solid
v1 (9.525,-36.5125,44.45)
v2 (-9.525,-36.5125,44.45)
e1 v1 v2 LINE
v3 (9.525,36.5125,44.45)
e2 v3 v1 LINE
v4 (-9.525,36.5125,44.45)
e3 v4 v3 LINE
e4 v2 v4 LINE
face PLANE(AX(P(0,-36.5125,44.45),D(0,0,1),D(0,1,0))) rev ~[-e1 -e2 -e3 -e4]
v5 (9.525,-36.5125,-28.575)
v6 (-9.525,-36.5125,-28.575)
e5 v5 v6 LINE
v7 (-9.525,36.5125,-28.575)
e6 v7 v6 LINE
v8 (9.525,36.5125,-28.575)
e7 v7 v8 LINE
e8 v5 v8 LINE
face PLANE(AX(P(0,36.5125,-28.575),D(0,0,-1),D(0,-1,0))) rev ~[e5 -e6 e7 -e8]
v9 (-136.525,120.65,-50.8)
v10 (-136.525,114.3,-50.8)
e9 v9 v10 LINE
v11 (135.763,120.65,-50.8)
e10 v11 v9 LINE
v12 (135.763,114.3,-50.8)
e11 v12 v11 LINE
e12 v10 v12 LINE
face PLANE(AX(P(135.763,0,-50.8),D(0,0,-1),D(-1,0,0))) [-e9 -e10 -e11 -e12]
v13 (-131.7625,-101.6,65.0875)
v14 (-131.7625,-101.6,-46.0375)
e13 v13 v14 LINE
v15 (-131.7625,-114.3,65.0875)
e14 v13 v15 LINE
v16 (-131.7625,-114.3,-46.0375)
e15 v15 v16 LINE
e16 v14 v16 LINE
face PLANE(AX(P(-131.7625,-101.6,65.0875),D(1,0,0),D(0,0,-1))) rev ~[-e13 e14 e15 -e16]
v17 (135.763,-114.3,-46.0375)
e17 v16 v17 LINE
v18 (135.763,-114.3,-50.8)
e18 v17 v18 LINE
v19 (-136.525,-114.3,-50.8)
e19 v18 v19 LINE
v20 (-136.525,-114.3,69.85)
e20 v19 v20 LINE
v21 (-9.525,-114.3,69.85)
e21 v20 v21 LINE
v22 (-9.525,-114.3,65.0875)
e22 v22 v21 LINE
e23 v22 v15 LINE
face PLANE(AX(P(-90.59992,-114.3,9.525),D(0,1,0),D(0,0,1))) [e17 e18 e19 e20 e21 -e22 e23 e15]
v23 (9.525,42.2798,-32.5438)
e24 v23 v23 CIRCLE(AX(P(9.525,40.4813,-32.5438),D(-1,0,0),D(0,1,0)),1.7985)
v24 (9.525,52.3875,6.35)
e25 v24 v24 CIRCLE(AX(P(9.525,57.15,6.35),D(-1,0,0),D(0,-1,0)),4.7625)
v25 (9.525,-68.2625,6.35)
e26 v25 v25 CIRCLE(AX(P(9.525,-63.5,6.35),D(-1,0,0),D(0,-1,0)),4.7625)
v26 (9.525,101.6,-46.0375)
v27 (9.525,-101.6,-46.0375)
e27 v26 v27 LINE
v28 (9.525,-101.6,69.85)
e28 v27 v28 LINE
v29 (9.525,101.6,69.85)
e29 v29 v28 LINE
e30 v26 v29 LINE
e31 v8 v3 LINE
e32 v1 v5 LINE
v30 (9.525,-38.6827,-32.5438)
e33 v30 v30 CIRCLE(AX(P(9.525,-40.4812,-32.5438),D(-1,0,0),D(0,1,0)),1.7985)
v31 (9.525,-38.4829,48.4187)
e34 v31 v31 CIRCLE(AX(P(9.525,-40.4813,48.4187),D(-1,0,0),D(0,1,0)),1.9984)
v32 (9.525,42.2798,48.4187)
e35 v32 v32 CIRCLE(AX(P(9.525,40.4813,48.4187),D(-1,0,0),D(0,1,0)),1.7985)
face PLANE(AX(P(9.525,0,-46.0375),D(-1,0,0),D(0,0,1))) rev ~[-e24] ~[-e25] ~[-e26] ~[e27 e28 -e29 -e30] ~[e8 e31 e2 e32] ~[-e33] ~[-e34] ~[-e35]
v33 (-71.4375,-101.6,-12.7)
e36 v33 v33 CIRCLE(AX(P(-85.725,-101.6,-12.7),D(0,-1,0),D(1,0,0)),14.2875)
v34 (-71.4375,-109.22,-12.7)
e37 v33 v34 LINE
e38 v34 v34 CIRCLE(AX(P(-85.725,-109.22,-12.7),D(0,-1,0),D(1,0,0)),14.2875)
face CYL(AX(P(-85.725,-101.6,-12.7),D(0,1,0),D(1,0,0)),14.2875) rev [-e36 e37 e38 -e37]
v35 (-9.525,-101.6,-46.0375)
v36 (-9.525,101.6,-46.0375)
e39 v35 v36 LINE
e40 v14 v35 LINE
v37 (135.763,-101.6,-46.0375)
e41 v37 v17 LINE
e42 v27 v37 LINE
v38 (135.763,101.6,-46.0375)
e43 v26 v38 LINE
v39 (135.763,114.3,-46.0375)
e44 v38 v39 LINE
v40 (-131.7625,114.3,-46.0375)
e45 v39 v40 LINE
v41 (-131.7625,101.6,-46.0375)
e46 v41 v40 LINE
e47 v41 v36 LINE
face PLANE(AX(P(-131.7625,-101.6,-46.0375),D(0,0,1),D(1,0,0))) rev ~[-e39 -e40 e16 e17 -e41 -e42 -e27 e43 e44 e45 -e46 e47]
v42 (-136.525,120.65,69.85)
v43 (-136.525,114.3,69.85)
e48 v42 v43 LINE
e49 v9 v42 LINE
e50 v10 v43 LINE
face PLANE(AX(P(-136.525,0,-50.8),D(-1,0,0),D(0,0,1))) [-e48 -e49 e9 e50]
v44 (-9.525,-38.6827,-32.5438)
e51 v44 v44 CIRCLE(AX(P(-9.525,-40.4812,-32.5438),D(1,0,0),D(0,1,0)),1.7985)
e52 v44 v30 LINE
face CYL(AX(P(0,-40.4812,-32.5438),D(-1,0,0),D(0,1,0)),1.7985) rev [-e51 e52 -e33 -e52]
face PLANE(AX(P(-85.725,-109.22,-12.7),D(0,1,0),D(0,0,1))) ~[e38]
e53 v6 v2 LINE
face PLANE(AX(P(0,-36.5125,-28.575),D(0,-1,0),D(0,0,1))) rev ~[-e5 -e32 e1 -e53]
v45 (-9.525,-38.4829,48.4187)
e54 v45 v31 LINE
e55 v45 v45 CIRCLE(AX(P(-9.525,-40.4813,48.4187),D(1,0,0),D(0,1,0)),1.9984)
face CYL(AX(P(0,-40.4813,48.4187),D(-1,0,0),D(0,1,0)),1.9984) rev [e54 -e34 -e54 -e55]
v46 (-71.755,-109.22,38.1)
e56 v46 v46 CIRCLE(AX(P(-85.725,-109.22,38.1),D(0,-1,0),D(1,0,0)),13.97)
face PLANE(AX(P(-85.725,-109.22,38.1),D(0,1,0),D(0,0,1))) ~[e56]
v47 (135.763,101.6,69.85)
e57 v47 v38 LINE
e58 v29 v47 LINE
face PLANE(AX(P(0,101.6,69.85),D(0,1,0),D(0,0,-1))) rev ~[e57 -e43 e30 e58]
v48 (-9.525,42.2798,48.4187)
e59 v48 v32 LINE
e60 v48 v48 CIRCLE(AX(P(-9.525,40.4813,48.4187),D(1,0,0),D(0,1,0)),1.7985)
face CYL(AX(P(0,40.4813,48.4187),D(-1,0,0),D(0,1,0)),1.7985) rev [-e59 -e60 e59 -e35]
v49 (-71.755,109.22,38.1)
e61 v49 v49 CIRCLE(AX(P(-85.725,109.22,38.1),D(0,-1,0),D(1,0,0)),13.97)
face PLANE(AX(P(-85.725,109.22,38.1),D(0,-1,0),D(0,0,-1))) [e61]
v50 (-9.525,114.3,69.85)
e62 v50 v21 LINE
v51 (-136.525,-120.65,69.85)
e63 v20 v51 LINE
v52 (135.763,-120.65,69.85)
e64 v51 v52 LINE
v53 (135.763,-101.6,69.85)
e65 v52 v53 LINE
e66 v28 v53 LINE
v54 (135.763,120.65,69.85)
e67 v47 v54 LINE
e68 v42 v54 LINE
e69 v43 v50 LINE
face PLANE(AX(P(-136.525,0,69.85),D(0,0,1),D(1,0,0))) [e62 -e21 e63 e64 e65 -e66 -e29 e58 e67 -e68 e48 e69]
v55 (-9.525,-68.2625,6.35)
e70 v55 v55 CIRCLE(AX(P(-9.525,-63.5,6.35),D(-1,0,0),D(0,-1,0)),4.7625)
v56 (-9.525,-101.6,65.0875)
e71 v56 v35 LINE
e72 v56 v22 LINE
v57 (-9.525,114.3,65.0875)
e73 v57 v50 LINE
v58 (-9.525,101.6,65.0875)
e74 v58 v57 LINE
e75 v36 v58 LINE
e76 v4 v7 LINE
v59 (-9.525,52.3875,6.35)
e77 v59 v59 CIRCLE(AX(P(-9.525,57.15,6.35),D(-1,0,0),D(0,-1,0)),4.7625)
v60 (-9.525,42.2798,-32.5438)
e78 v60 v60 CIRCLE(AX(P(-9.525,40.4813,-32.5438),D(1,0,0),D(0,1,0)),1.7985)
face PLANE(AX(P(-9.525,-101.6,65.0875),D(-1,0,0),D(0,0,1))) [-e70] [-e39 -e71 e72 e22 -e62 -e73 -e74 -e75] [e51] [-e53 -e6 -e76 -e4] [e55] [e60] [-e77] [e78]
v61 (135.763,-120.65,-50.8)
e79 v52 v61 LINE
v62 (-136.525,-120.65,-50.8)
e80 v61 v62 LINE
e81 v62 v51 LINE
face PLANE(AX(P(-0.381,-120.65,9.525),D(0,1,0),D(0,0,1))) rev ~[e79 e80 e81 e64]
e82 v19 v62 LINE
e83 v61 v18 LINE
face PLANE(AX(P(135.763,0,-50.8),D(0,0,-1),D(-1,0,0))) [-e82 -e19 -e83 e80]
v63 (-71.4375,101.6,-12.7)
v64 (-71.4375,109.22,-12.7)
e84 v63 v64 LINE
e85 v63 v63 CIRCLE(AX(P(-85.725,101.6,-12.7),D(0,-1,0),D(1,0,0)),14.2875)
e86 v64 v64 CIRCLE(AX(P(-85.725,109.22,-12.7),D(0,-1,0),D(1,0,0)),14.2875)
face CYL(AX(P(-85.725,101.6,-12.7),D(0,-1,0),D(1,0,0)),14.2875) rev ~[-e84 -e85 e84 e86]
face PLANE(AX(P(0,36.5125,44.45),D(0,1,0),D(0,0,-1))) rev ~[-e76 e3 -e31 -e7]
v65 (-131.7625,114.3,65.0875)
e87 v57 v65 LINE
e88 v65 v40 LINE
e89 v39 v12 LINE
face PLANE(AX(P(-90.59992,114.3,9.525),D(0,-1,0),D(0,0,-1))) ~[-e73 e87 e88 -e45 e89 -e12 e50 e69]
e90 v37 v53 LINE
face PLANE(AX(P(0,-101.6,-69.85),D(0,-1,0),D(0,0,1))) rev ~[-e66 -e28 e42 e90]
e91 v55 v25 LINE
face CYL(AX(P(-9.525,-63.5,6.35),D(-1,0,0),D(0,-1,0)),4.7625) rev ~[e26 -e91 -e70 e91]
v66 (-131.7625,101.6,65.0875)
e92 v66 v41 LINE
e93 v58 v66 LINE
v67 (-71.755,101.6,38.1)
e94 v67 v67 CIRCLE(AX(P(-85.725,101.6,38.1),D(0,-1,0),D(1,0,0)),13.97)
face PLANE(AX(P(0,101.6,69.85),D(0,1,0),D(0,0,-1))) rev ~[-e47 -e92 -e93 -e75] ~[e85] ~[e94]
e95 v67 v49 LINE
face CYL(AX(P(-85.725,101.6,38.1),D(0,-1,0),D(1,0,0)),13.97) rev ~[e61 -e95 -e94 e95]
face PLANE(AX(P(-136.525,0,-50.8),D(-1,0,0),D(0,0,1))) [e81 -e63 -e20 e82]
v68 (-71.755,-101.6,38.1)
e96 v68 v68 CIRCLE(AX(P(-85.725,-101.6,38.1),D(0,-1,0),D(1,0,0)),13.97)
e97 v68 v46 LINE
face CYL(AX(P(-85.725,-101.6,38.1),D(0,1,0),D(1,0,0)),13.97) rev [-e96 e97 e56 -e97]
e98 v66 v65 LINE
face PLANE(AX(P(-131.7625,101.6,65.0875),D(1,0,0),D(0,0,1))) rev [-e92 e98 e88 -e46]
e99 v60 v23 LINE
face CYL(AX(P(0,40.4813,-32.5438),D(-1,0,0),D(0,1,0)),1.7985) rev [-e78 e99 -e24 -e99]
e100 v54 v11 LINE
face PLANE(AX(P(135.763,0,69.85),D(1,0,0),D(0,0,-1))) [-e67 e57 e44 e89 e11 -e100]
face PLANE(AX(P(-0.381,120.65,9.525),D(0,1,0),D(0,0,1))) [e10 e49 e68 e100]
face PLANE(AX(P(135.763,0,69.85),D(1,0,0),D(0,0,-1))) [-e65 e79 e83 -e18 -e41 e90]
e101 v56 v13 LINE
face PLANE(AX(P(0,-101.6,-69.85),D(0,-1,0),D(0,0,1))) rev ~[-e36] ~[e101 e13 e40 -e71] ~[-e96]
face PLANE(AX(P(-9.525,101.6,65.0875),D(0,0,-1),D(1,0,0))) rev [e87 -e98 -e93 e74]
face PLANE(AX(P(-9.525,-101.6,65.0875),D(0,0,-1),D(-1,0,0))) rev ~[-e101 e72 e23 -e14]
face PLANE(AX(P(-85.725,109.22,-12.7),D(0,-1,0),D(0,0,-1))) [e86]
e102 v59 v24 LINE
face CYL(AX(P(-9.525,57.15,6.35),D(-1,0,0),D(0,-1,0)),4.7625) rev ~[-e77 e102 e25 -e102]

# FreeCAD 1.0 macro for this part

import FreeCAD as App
import Part
import Sketcher

V = App.Vector
Q = App.Units.Quantity

doc = App.newDocument("Part")
body = doc.addObject("PartDesign::Body", "Body")
body.AllowCompound = True

# Sketch on XZ plane
sketch1 = body.newObject("Sketcher::SketchObject", "Sketch")
sketch1.AttachmentSupport = (doc.getObject("XZ_Plane"), [""])
sketch1.MapMode = "FlatFace"
sketch1.addGeometry([
    Part.LineSegment(V(136, 70, 0), V(-137, 70, 0)),
    Part.LineSegment(V(-137, 70, 0), V(-137, -51, 0)),
    Part.LineSegment(V(-137, -51, 0), V(136, -51, 0)),
    Part.LineSegment(V(136, -51, 0), V(136, 70, 0)),
], False)
sketch1.addConstraint([
    Sketcher.Constraint("Coincident", 0, 2, 1, 1),
    Sketcher.Constraint("Coincident", 1, 2, 2, 1),
    Sketcher.Constraint("Coincident", 2, 2, 3, 1),
    Sketcher.Constraint("Coincident", 3, 2, 0, 1),
    Sketcher.Constraint("Horizontal", 0),
    Sketcher.Constraint("Vertical", 1),
    Sketcher.Constraint("Horizontal", 2),
    Sketcher.Constraint("Vertical", 3),
    Sketcher.Constraint("DistanceX", 0, 2, -1, 1, Q("5.375 in")),
    Sketcher.Constraint("DistanceY", 1, 2, -1, 1, Q("2 in")),
    Sketcher.Constraint("DistanceX", 0, 2, 0, 1, Q("10.72 in")),
    Sketcher.Constraint("DistanceY", 1, 2, 1, 1, Q("4.75 in")),
])
pad1 = body.newObject("PartDesign::Pad", "Pad")
pad1.Profile = sketch1
pad1.Length = Q("9.5 in")
pad1.Midplane = True

# Sketch on YZ plane
sketch2 = body.newObject("Sketcher::SketchObject", "Sketch001")
sketch2.AttachmentSupport = (doc.getObject("YZ_Plane"), [""])
sketch2.MapMode = "FlatFace"
sketch2.addGeometry([
    Part.LineSegment(V(-102, -70, 0), V(102, -70, 0)),
    Part.LineSegment(V(102, -70, 0), V(102, 70, 0)),
    Part.LineSegment(V(102, 70, 0), V(-102, 70, 0)),
    Part.LineSegment(V(-102, 70, 0), V(-102, -70, 0)),
], False)
sketch2.addConstraint([
    Sketcher.Constraint("Coincident", 0, 2, 1, 1),
    Sketcher.Constraint("Coincident", 1, 2, 2, 1),
    Sketcher.Constraint("Coincident", 2, 2, 3, 1),
    Sketcher.Constraint("Coincident", 3, 2, 0, 1),
    Sketcher.Constraint("Horizontal", 0),
    Sketcher.Constraint("Vertical", 1),
    Sketcher.Constraint("Horizontal", 2),
    Sketcher.Constraint("Vertical", 3),
    Sketcher.Constraint("Symmetric", 0, 2, 2, 2, -1, 1),
    Sketcher.Constraint("DistanceX", 0, 1, 0, 2, Q("8 in")),
    Sketcher.Constraint("DistanceY", 1, 1, 1, 2, Q("5.5 in")),
])
pocket1 = body.newObject("PartDesign::Pocket", "Pocket")
pocket1.Profile = sketch2
pocket1.Type = "ThroughAll"
pocket1.Midplane = True

# Sketch on XZ plane
sketch3 = body.newObject("Sketcher::SketchObject", "Sketch002")
sketch3.AttachmentSupport = (doc.getObject("XZ_Plane"), [""])
sketch3.MapMode = "FlatFace"
sketch3.AttachmentOffset = App.Placement(V(0, 0, 4 * 25.4), App.Rotation())
sketch3.addGeometry([
    Part.LineSegment(V(-131.8, 65.1, 0), V(-131.8, -46, 0)),  # 0
    Part.LineSegment(V(-131.8, -46, 0), V(-9.5, -46, 0)),  # 1
    Part.LineSegment(V(-9.5, -46, 0), V(-9.5, -50.8, 0)),  # 2
    Part.LineSegment(V(-9.5, -50.8, 0), V(-136.5, -50.8, 0)),  # 3
    Part.LineSegment(V(-136.5, -50.8, 0), V(-136.5, 69.8, 0)),  # 4
    Part.LineSegment(V(-136.5, 69.8, 0), V(-9.5, 69.8, 0)),  # 5
    Part.LineSegment(V(-9.5, 69.8, 0), V(-9.5, 65.1, 0)),  # 6
    Part.LineSegment(V(-9.5, 65.1, 0), V(-131.8, 65.1, 0)),  # 7
], False)
sketch3.addConstraint([
    Sketcher.Constraint("Coincident", 0, 2, 1, 1),
    Sketcher.Constraint("Coincident", 1, 2, 2, 1),
    Sketcher.Constraint("Coincident", 2, 2, 3, 1),
    Sketcher.Constraint("Coincident", 3, 2, 4, 1),
    Sketcher.Constraint("Coincident", 4, 2, 5, 1),
    Sketcher.Constraint("Coincident", 5, 2, 6, 1),
    Sketcher.Constraint("Coincident", 6, 2, 7, 1),
    Sketcher.Constraint("Coincident", 7, 2, 0, 1),
    Sketcher.Constraint("Vertical", 0),
    Sketcher.Constraint("Horizontal", 1),
    Sketcher.Constraint("Vertical", 2),
    Sketcher.Constraint("Horizontal", 3),
    Sketcher.Constraint("Vertical", 4),
    Sketcher.Constraint("Horizontal", 5),
    Sketcher.Constraint("Vertical", 6),
    Sketcher.Constraint("Horizontal", 7),
    Sketcher.Constraint("Vertical", 2, 2, 5, 2),
    Sketcher.Constraint("Equal", 2, 6),
    Sketcher.Constraint("DistanceX", 3, 2, 3, 1, Q("5 in")),
    Sketcher.Constraint("DistanceY", 2, 2, -1, 1, Q("2 in")),
    Sketcher.Constraint("DistanceY", 4, 1, 4, 2, Q("4.75 in")),
    Sketcher.Constraint("DistanceX", 1, 1, 1, 2, Q("4.8125 in")),
    Sketcher.Constraint("DistanceY", 0, 2, 0, 1, Q("4.375 in")),
    Sketcher.Constraint("DistanceX", 0, 2, -1, 1, Q("5.1875 in")),
])
pocket2 = body.newObject("PartDesign::Pocket", "Pocket001")
pocket2.Profile = sketch3
pocket2.Length = Q("0.5 in")
pocket2.Reversed = True
doc.recompute()

mirrored = body.newObject("PartDesign::Mirrored", "Mirrored")
mirrored.Originals = [pocket2]
mirrored.MirrorPlane = (doc.getObject("XZ_Plane"), [""])
body.Tip = mirrored

# Sketch on XZ plane
sketch4 = body.newObject("Sketcher::SketchObject", "Sketch003")
sketch4.AttachmentSupport = (doc.getObject("XZ_Plane"), [""])
sketch4.MapMode = "FlatFace"
sketch4.AttachmentOffset = App.Placement(V(0, 0, -4 * 25.4), App.Rotation())
sketch4.addGeometry([
    Part.Circle(V(-86, -13, 0), V(0, 0, 1), 14),
    Part.Circle(V(-86, 38, 0), V(0, 0, 1), 14),
], False)
sketch4.addConstraint([
    Sketcher.Constraint("Vertical", 0, 3, 1, 3),
    Sketcher.Constraint("Diameter", 1, Q("1.1 in")),
    Sketcher.Constraint("Diameter", 0, Q("1.125 in")),
    Sketcher.Constraint("DistanceY", 0, 3, 1, 3, Q("2 in")),
    Sketcher.Constraint("DistanceY", 0, 3, -1, 1, Q("0.5 in")),
    Sketcher.Constraint("DistanceX", 0, 3, -1, 1, Q("3.375 in")),
])
pocket3 = body.newObject("PartDesign::Pocket", "Pocket002")
pocket3.Profile = sketch4
pocket3.Length = Q("0.3 in")
doc.recompute()

mirrored2 = body.newObject("PartDesign::Mirrored", "Mirrored001")
mirrored2.Originals = [pocket3]
mirrored2.MirrorPlane = (doc.getObject("XZ_Plane"), [""])
body.Tip = mirrored2

# Sketch on XZ plane
sketch5 = body.newObject("Sketcher::SketchObject", "Sketch004")
sketch5.AttachmentSupport = (doc.getObject("XZ_Plane"), [""])
sketch5.MapMode = "FlatFace"
sketch5.addGeometry([
    Part.LineSegment(V(-10, 70, 0), V(-10, -46, 0)),
    Part.LineSegment(V(-10, -46, 0), V(10, -46, 0)),
    Part.LineSegment(V(10, -46, 0), V(10, 70, 0)),
    Part.LineSegment(V(10, 70, 0), V(-10, 70, 0)),
], False)
sketch5.addConstraint([
    Sketcher.Constraint("Coincident", 0, 2, 1, 1),
    Sketcher.Constraint("Coincident", 1, 2, 2, 1),
    Sketcher.Constraint("Coincident", 2, 2, 3, 1),
    Sketcher.Constraint("Coincident", 3, 2, 0, 1),
    Sketcher.Constraint("Vertical", 0),
    Sketcher.Constraint("Horizontal", 1),
    Sketcher.Constraint("Vertical", 2),
    Sketcher.Constraint("Horizontal", 3),
    Sketcher.Constraint("DistanceX", 1, 1, 1, 2, Q("0.75 in")),
    Sketcher.Constraint("DistanceY", 0, 2, 0, 1, Q("4.5625 in")),
    Sketcher.Constraint("DistanceY", -1, 1, 2, 2, Q("2.75 in")),
    Sketcher.Constraint("DistanceX", 0, 2, -1, 1, Q("0.375 in")),
])
pad2 = body.newObject("PartDesign::Pad", "Pad001")
pad2.Profile = sketch5
pad2.Type = "TwoLengths"
pad2.Length = Q("4 in")
pad2.Length2 = Q("4 in")

# Sketch on YZ plane
sketch6 = body.newObject("Sketcher::SketchObject", "Sketch005")
sketch6.AttachmentSupport = (doc.getObject("YZ_Plane"), [""])
sketch6.MapMode = "FlatFace"
sketch6.addGeometry([
    Part.LineSegment(V(-36.5, -28.6, 0), V(36.5, -28.6, 0)),  # 0
    Part.LineSegment(V(36.5, -28.6, 0), V(36.5, 44.5, 0)),  # 1
    Part.LineSegment(V(36.5, 44.5, 0), V(-36.5, 44.5, 0)),  # 2
    Part.LineSegment(V(-36.5, 44.5, 0), V(-36.5, -28.6, 0)),  # 3
    Part.Circle(V(-40.5, 48.4, 0), V(0, 0, 1), 2),  # 4
    Part.Circle(V(-40.5, -32.5, 0), V(0, 0, 1), 1.8),  # 5
    Part.Circle(V(40.5, 48.4, 0), V(0, 0, 1), 1.8),  # 6
    Part.Circle(V(40.5, -32.5, 0), V(0, 0, 1), 1.8),  # 7
], False)
sketch6.addConstraint([
    Sketcher.Constraint("Coincident", 0, 2, 1, 1),
    Sketcher.Constraint("Coincident", 1, 2, 2, 1),
    Sketcher.Constraint("Coincident", 2, 2, 3, 1),
    Sketcher.Constraint("Coincident", 3, 2, 0, 1),
    Sketcher.Constraint("Horizontal", 0),
    Sketcher.Constraint("Vertical", 1),
    Sketcher.Constraint("Horizontal", 2),
    Sketcher.Constraint("Vertical", 3),
    Sketcher.Constraint("Equal", 5, 6),
    Sketcher.Constraint("Equal", 6, 7),
    Sketcher.Constraint("Symmetric", 4, 3, 6, 3, -2),
    Sketcher.Constraint("Symmetric", 5, 3, 7, 3, -2),
    Sketcher.Constraint("Vertical", 4, 3, 5, 3),
    Sketcher.Constraint("Equal", 2, 1),
    Sketcher.Constraint("DistanceX", -1, 1, 0, 2, Q("1.4375 in")),
    Sketcher.Constraint("DistanceX", 2, 2, -1, 1, Q("1.4375 in")),
    Sketcher.Constraint("Diameter", 4, 3.9968),
    Sketcher.Constraint("Diameter", 5, 3.597),
    Sketcher.Constraint("DistanceY", -1, 1, 1, 2, Q("1.75 in")),
    Sketcher.Constraint("DistanceX", 4, 3, -1, 1, Q("1.593752 in")),
    Sketcher.Constraint("DistanceY", -1, 1, 4, 3, Q("1.906248 in")),
    Sketcher.Constraint("DistanceY", 5, 3, -1, 1, Q("1.281252 in")),
])
pocket4 = body.newObject("PartDesign::Pocket", "Pocket003")
pocket4.Profile = sketch6
pocket4.Type = "ThroughAll"
pocket4.Midplane = True

# Sketch on YZ plane
sketch7 = body.newObject("Sketcher::SketchObject", "Sketch006")
sketch7.AttachmentSupport = (doc.getObject("YZ_Plane"), [""])
sketch7.MapMode = "FlatFace"
sketch7.AttachmentOffset = App.Placement(V(0, 0, -0.375 * 25.4), App.Rotation())
sketch7.addGeometry([
    Part.Circle(V(57.1, 6.3, 0), V(0, 0, 1), 4.8),
    Part.Circle(V(-63.5, 6.3, 0), V(0, 0, 1), 4.8),
], False)
sketch7.addConstraint([
    Sketcher.Constraint("Equal", 0, 1),
    Sketcher.Constraint("Horizontal", 0, 3, 1, 3),
    Sketcher.Constraint("Diameter", 0, Q("0.375 in")),
    Sketcher.Constraint("DistanceX", 1, 3, -1, 1, Q("2.5 in")),
    Sketcher.Constraint("DistanceX", -1, 1, 0, 3, Q("2.25 in")),
    Sketcher.Constraint("DistanceY", -1, 1, 0, 3, Q("0.25 in")),
])
pocket5 = body.newObject("PartDesign::Pocket", "Pocket004")
pocket5.Profile = sketch7
pocket5.Length = Q("0.75 in")
pocket5.Reversed = True

# Sketch on YZ plane
sketch8 = body.newObject("Sketcher::SketchObject", "Sketch007")
sketch8.AttachmentSupport = (doc.getObject("YZ_Plane"), [""])
sketch8.MapMode = "FlatFace"
sketch8.AttachmentOffset = App.Placement(V(0, 0, -5.375 * 25.4), App.Rotation())
sketch8.addGeometry([
    Part.LineSegment(V(101.6, -46, 0), V(114.3, -46, 0)),
    Part.LineSegment(V(114.3, -46, 0), V(114.3, -50.8, 0)),
    Part.LineSegment(V(114.3, -50.8, 0), V(101.6, -50.8, 0)),
    Part.LineSegment(V(101.6, -50.8, 0), V(101.6, -46, 0)),
], False)
sketch8.addConstraint([
    Sketcher.Constraint("Coincident", 0, 2, 1, 1),
    Sketcher.Constraint("Coincident", 1, 2, 2, 1),
    Sketcher.Constraint("Coincident", 2, 2, 3, 1),
    Sketcher.Constraint("Coincident", 3, 2, 0, 1),
    Sketcher.Constraint("Horizontal", 0),
    Sketcher.Constraint("Vertical", 1),
    Sketcher.Constraint("Horizontal", 2),
    Sketcher.Constraint("Vertical", 3),
    Sketcher.Constraint("DistanceX", 0, 1, 0, 2, Q("0.5 in")),
    Sketcher.Constraint("DistanceY", 1, 2, -1, 1, Q("2 in")),
    Sketcher.Constraint("DistanceX", -1, 1, 2, 2, Q("4 in")),
    Sketcher.Constraint("DistanceY", 1, 2, 1, 1, Q("0.1875 in")),
])
pocket6 = body.newObject("PartDesign::Pocket", "Pocket005")
pocket6.Profile = sketch8
pocket6.Length = Q("10.72 in")
pocket6.Reversed = True
doc.recompute()

mirrored3 = body.newObject("PartDesign::Mirrored", "Mirrored002")
mirrored3.Originals = [pocket6]
mirrored3.MirrorPlane = (doc.getObject("XZ_Plane"), [""])
body.Tip = mirrored3

doc.recompute()
